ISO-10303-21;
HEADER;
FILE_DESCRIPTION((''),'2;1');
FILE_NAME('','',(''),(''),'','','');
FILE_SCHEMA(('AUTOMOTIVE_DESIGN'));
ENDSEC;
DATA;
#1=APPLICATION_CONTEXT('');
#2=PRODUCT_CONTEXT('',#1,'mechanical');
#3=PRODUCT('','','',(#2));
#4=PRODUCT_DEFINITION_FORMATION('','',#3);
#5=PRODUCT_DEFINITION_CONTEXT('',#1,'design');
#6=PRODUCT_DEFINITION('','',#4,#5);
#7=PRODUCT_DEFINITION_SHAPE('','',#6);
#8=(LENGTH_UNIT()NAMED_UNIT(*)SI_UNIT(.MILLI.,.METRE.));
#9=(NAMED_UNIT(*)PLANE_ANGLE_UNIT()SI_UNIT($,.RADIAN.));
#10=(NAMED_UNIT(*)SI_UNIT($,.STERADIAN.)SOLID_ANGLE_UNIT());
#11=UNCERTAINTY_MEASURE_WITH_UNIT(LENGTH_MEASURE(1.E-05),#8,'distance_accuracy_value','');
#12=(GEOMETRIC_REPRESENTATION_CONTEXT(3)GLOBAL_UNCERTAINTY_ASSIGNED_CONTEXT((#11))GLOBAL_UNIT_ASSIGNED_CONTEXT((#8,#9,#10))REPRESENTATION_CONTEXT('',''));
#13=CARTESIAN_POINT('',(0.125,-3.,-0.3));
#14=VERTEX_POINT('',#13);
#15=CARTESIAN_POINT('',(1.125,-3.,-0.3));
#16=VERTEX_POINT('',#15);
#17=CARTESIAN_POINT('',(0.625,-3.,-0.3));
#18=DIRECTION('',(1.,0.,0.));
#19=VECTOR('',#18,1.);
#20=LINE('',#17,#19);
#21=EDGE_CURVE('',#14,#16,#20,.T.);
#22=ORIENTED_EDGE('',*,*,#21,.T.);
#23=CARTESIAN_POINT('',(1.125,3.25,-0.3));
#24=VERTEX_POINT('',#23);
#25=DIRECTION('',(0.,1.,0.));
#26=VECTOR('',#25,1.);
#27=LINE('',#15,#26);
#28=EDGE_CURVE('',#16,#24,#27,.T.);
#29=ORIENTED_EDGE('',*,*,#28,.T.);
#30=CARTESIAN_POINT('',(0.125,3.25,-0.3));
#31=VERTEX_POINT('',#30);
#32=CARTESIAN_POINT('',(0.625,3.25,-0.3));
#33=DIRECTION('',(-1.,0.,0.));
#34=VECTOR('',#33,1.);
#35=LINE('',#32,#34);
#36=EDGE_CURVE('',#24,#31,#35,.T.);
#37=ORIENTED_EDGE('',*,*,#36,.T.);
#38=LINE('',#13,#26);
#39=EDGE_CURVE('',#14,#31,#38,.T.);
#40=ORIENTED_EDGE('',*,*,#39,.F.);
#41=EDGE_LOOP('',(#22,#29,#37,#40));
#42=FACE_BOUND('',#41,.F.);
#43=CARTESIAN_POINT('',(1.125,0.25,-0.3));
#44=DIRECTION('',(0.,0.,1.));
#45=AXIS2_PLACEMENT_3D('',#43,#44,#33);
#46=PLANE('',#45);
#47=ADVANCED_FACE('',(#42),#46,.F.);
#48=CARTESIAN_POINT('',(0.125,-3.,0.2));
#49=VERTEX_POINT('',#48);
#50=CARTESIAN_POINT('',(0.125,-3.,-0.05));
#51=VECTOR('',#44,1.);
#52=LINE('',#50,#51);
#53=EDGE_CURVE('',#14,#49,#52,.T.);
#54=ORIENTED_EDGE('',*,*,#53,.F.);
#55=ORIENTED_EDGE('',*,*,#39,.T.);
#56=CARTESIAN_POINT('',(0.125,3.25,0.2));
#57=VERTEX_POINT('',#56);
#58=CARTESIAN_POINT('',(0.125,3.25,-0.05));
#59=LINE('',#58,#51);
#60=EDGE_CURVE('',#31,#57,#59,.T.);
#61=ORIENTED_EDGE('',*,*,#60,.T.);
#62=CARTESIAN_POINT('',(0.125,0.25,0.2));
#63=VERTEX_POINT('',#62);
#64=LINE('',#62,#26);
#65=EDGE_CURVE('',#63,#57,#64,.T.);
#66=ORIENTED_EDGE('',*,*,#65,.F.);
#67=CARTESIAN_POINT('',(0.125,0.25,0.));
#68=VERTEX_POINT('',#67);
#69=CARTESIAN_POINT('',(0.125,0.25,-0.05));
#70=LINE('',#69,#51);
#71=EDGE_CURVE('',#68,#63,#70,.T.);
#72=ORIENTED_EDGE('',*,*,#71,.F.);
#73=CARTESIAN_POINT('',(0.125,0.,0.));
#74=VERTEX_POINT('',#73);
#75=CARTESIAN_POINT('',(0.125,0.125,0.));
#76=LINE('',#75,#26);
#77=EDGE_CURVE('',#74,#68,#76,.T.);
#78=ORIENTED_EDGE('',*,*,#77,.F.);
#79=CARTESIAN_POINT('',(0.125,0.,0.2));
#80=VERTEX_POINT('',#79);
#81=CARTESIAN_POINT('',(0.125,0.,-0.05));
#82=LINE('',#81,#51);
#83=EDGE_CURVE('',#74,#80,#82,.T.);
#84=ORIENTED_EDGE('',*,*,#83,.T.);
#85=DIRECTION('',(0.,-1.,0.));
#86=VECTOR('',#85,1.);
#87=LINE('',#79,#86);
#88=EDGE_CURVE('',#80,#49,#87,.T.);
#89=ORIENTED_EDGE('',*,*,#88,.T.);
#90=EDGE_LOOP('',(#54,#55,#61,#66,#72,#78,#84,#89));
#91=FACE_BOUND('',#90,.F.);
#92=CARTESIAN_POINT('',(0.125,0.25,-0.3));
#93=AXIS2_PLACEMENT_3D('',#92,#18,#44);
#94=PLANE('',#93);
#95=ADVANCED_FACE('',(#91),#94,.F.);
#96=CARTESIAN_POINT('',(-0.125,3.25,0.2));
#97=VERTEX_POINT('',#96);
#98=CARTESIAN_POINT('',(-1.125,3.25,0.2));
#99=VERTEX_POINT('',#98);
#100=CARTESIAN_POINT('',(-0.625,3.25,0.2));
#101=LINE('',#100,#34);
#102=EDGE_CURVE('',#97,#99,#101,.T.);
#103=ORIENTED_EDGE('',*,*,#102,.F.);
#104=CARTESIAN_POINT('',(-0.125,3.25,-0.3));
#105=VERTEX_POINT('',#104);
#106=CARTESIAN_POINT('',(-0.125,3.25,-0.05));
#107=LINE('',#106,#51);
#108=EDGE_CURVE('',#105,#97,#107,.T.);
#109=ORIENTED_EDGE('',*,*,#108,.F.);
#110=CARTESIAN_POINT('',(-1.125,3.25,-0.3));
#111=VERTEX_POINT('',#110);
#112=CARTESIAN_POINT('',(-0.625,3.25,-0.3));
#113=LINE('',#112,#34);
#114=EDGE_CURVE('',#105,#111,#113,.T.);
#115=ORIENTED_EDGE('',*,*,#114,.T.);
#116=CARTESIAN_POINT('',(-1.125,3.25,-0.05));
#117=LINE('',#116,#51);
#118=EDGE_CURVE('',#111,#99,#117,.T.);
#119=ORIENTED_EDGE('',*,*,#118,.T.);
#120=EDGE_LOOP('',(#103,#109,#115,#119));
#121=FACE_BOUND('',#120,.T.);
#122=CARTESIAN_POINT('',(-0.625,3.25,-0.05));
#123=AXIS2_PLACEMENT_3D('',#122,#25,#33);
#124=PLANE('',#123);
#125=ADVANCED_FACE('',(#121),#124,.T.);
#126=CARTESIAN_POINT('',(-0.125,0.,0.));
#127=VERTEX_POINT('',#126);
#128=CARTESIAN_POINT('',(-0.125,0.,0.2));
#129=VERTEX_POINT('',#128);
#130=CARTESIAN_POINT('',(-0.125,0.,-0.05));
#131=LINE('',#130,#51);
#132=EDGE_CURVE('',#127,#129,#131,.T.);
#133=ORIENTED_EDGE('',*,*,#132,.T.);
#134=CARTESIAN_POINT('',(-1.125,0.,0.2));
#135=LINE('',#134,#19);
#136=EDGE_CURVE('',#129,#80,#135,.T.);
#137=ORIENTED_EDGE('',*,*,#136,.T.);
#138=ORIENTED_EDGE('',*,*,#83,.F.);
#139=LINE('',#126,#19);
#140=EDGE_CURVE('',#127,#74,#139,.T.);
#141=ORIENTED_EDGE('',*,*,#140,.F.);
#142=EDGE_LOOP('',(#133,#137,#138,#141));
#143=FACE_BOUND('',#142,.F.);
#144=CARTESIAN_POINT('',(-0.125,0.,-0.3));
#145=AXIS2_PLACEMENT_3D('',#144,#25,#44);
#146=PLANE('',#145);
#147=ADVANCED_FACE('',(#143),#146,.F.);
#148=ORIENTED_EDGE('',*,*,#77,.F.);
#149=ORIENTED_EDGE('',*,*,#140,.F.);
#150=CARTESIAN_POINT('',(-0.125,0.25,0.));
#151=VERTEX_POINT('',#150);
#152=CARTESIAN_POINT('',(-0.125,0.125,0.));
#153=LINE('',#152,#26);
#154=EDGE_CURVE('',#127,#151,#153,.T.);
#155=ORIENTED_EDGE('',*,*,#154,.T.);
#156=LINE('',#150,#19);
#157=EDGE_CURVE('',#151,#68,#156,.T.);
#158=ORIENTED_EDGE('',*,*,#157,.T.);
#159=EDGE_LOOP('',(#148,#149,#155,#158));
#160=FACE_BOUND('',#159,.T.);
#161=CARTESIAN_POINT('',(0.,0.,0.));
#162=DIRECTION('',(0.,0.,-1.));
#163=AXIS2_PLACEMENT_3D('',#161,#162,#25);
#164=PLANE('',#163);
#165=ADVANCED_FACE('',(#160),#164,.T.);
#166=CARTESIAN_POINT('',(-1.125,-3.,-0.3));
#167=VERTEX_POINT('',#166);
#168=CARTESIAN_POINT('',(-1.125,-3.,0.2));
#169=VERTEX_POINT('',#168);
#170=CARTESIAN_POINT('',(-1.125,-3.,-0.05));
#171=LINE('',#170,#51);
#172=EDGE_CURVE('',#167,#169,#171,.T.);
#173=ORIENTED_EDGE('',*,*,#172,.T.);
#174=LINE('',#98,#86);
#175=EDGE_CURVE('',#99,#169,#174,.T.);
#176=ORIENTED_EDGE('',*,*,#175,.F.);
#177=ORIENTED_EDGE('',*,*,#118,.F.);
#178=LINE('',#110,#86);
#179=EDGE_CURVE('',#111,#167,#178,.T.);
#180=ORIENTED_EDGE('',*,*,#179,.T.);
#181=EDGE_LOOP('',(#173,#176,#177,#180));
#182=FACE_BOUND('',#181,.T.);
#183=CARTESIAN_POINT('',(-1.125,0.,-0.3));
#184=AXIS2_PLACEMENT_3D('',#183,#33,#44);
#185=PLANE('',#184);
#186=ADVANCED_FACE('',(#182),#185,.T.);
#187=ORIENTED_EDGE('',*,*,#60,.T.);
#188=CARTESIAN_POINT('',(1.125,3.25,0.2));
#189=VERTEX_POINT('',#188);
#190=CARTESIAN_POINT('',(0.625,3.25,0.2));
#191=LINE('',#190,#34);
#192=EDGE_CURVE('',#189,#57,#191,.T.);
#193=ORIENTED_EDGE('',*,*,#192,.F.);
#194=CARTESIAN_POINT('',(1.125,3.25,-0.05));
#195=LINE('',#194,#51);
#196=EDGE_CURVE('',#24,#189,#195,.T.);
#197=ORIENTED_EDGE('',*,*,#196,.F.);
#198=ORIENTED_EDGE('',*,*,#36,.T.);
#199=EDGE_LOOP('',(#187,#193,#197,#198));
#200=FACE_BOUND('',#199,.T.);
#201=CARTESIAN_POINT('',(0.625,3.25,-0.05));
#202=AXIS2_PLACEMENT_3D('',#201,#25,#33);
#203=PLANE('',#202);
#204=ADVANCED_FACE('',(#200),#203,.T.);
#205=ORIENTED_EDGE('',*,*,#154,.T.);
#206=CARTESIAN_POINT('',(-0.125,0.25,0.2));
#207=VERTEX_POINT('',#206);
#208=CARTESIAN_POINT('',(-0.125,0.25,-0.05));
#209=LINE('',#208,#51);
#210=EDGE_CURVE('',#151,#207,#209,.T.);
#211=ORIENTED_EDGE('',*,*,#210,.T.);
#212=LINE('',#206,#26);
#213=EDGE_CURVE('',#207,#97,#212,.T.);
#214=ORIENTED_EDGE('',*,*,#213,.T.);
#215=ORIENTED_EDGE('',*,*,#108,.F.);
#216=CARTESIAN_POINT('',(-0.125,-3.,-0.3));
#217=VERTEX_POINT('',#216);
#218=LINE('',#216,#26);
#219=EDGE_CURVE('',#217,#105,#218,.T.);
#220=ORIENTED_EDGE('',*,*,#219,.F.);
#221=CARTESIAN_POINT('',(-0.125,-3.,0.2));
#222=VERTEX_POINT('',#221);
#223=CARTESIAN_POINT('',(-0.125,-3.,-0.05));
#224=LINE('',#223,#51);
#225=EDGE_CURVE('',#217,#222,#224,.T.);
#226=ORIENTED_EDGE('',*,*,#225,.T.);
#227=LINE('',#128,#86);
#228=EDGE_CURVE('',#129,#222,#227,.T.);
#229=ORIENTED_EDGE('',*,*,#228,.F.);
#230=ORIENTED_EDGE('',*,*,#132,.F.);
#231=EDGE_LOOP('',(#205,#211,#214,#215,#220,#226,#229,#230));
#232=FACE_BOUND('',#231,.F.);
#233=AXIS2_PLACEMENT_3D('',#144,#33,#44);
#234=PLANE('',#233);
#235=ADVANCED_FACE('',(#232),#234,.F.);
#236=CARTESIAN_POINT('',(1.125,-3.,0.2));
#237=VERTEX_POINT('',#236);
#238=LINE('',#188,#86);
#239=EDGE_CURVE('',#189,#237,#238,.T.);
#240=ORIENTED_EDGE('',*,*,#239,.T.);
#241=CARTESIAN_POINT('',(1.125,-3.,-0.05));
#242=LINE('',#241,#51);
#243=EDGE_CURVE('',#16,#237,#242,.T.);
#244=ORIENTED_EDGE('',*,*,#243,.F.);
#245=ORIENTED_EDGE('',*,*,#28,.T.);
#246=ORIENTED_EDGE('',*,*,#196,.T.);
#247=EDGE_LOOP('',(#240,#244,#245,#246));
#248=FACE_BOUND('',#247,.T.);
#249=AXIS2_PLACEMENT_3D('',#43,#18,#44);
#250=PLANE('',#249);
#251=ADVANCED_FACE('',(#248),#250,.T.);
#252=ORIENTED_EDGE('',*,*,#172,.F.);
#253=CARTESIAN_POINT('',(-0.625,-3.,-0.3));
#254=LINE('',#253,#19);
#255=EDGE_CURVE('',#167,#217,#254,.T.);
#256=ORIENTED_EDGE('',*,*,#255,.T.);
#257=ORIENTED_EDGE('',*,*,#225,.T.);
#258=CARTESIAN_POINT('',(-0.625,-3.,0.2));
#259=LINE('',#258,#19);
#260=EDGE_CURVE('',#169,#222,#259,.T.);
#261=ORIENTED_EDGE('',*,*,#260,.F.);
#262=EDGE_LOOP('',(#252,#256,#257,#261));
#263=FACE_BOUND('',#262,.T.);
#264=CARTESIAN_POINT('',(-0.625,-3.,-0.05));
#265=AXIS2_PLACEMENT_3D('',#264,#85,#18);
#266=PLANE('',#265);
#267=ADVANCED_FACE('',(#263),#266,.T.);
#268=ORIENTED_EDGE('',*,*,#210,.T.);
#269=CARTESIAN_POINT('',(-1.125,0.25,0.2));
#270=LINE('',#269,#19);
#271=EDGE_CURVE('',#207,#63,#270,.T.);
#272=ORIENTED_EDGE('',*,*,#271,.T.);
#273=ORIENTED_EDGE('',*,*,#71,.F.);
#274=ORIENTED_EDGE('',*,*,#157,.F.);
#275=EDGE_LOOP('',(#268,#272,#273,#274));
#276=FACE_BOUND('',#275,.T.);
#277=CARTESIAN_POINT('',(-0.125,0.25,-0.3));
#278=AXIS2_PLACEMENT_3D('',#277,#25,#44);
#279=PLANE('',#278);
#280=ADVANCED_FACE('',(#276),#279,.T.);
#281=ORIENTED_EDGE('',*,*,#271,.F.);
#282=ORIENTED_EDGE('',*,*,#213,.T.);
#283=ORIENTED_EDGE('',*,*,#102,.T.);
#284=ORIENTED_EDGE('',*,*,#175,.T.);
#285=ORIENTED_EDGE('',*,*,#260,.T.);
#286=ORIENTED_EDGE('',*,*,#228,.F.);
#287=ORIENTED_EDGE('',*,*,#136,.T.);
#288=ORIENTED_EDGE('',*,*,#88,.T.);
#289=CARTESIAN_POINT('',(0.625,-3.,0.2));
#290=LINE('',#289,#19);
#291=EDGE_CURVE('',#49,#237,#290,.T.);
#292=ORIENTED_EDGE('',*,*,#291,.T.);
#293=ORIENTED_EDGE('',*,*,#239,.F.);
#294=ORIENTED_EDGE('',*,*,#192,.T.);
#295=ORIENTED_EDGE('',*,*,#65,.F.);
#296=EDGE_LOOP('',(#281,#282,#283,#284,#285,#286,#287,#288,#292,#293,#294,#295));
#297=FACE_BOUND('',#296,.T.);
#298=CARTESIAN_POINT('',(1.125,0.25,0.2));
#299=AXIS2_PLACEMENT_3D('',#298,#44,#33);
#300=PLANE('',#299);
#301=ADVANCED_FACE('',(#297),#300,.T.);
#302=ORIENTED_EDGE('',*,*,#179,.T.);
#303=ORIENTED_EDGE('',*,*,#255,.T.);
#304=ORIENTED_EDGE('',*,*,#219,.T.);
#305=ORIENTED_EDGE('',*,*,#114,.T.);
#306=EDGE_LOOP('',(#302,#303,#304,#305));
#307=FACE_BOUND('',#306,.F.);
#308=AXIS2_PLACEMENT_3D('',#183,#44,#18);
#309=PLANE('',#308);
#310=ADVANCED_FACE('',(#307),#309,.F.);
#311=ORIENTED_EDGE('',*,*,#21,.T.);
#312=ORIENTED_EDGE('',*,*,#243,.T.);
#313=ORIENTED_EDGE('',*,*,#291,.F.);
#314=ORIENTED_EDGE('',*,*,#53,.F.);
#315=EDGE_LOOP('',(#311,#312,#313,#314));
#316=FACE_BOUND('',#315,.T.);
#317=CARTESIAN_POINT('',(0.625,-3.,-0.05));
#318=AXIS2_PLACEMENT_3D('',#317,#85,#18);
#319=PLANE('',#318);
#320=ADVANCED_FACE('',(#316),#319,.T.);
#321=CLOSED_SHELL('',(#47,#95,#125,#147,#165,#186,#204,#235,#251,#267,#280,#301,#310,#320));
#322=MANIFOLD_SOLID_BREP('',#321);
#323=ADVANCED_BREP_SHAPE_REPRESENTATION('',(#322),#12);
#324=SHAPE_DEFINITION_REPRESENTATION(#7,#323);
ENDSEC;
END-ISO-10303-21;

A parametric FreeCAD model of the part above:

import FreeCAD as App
import Part
import Sketcher
from FreeCAD import Vector
Q = App.Units.Quantity


def add_polygon(sketch, points):
    """Adds a closed chain of lines whose ends are joined by coincident constraints."""
    first, n = sketch.GeometryCount, len(points)
    for a, b in zip(points, points[1:] + points[:1]):
        sketch.addGeometry(Part.LineSegment(App.Vector(*a, 0), App.Vector(*b, 0)), False)
    for i in range(n):
        sketch.addConstraint(Sketcher.Constraint("Coincident", first + i, 2, first + (i + 1) % n, 1))

doc = App.newDocument("Part")
body = doc.addObject("PartDesign::Body", "Body")

# Sketch on YZ plane
sketch1 = doc.addObject("Sketcher::SketchObject", "Sketch")
body.addObject(sketch1)
sketch1.AttachmentSupport = (doc.YZ_Plane, [""])
sketch1.MapMode = "FlatFace"
add_polygon(sketch1, [(0, 0.2), (0, 0), (0.25, 0), (0.25, 0.2)])  # lines 0-3
sketch1.addConstraint([
    Sketcher.Constraint("Vertical", 0),
    Sketcher.Constraint("Horizontal", 1),
    Sketcher.Constraint("Vertical", 2),
    Sketcher.Constraint("Horizontal", 3),
    Sketcher.Constraint("Coincident", 0, 2, -1, 1),
    Sketcher.Constraint("DistanceY", 0, 2, 0, 1, Q("0.2 mm")),
    Sketcher.Constraint("DistanceX", 1, 1, 1, 2, Q("0.25 mm")),
])
pad1 = doc.addObject("PartDesign::Pad", "Pad")
body.addObject(pad1)
pad1.Profile = sketch1
pad1.Length = 0.25
pad1.Midplane = True

# Sketch on YZ plane
sketch2 = doc.addObject("Sketcher::SketchObject", "Sketch001")
body.addObject(sketch2)
sketch2.AttachmentSupport = (doc.YZ_Plane, [""])
sketch2.MapMode = "FlatFace"
sketch2.AttachmentOffset = App.Placement(Vector(0, 0, 0.125), App.Rotation())
add_polygon(sketch2, [(0, 0.2), (0, -0.3), (0.25, -0.3), (0.25, 0.2)])  # lines 0-3
sketch2.addConstraint([
    Sketcher.Constraint("Vertical", 0),
    Sketcher.Constraint("Horizontal", 1),
    Sketcher.Constraint("Vertical", 2),
    Sketcher.Constraint("Horizontal", 3),
    Sketcher.Constraint("PointOnObject", 0, 2, -2),
    Sketcher.Constraint("DistanceY", 0, 2, 0, 1, Q("0.5 mm")),
    Sketcher.Constraint("DistanceX", 1, 1, 1, 2, Q("0.25 mm")),
    Sketcher.Constraint("DistanceY", 0, 2, -1, 1, Q("0.3 mm")),
])
pad2 = doc.addObject("PartDesign::Pad", "Pad001")
body.addObject(pad2)
pad2.Profile = sketch2
pad2.Length = 1

# Sketch on YZ plane
sketch3 = doc.addObject("Sketcher::SketchObject", "Sketch002")
body.addObject(sketch3)
sketch3.AttachmentSupport = (doc.YZ_Plane, [""])
sketch3.MapMode = "FlatFace"
sketch3.AttachmentOffset = App.Placement(Vector(0, 0, -0.125), App.Rotation())
add_polygon(sketch3, [(0.25, 0.2), (0.25, -0.3), (0, -0.3), (0, 0.2)])  # lines 0-3
sketch3.addConstraint([
    Sketcher.Constraint("Vertical", 0),
    Sketcher.Constraint("Horizontal", 1),
    Sketcher.Constraint("Vertical", 2),
    Sketcher.Constraint("Horizontal", 3),
    Sketcher.Constraint("PointOnObject", 1, 2, -2),
    Sketcher.Constraint("DistanceY", 0, 2, 0, 1, Q("0.5 mm")),
    Sketcher.Constraint("DistanceX", 1, 2, 1, 1, Q("0.25 mm")),
    Sketcher.Constraint("DistanceY", 0, 2, -1, 1, Q("0.3 mm")),
])
pad3 = doc.addObject("PartDesign::Pad", "Pad002")
body.addObject(pad3)
pad3.Profile = sketch3
pad3.Length = 1
pad3.Reversed = True

# Sketch on XZ plane
sketch4 = doc.addObject("Sketcher::SketchObject", "Sketch003")
body.addObject(sketch4)
sketch4.AttachmentSupport = (doc.XZ_Plane, [""])
sketch4.MapMode = "FlatFace"
add_polygon(sketch4, [(-1.1, 0.2), (-1.1, -0.3), (-0.1, -0.3), (-0.1, 0.2)])  # lines 0-3
add_polygon(sketch4, [(0.1, 0.2), (0.1, -0.3), (1.1, -0.3), (1.1, 0.2)])  # lines 4-7
sketch4.addConstraint([
    Sketcher.Constraint("Vertical", 0),
    Sketcher.Constraint("Horizontal", 1),
    Sketcher.Constraint("Vertical", 2),
    Sketcher.Constraint("Horizontal", 3),
    Sketcher.Constraint("Vertical", 4),
    Sketcher.Constraint("Horizontal", 5),
    Sketcher.Constraint("Vertical", 6),
    Sketcher.Constraint("Horizontal", 7),
    Sketcher.Constraint("Symmetric", 1, 2, 4, 2, -2),
    Sketcher.Constraint("Symmetric", 3, 2, 6, 2, -2),
    Sketcher.Constraint("DistanceX", 1, 1, 1, 2, Q("1 mm")),
    Sketcher.Constraint("DistanceY", 0, 2, 0, 1, Q("0.5 mm")),
    Sketcher.Constraint("DistanceY", 0, 2, -1, 1, Q("0.3 mm")),
    Sketcher.Constraint("DistanceX", 1, 2, 4, 2, Q("0.25 mm")),
])
pad4 = doc.addObject("PartDesign::Pad", "Pad003")
body.addObject(pad4)
pad4.Profile = sketch4
pad4.Length = 3

# Sketch on XZ plane
sketch5 = doc.addObject("Sketcher::SketchObject", "Sketch004")
body.addObject(sketch5)
sketch5.AttachmentSupport = (doc.XZ_Plane, [""])
sketch5.MapMode = "FlatFace"
sketch5.AttachmentOffset = App.Placement(Vector(0, 0, -0.25), App.Rotation())
add_polygon(sketch5, [(1.1, 0.2), (1.1, -0.3), (0.1, -0.3), (0.1, 0.2)])  # lines 0-3
add_polygon(sketch5, [(-0.1, 0.2), (-0.1, -0.3), (-1.1, -0.3), (-1.1, 0.2)])  # lines 4-7
sketch5.addConstraint([
    Sketcher.Constraint("Vertical", 0),
    Sketcher.Constraint("Horizontal", 1),
    Sketcher.Constraint("Vertical", 2),
    Sketcher.Constraint("Horizontal", 3),
    Sketcher.Constraint("Vertical", 4),
    Sketcher.Constraint("Horizontal", 5),
    Sketcher.Constraint("Vertical", 6),
    Sketcher.Constraint("Horizontal", 7),
    Sketcher.Constraint("Symmetric", 1, 2, 4, 2, -2),
    Sketcher.Constraint("Symmetric", 3, 2, 6, 2, -2),
    Sketcher.Constraint("DistanceX", 1, 2, 1, 1, Q("1 mm")),
    Sketcher.Constraint("DistanceY", 0, 2, 0, 1, Q("0.5 mm")),
    Sketcher.Constraint("DistanceY", 0, 2, -1, 1, Q("0.3 mm")),
    Sketcher.Constraint("DistanceX", 4, 2, 1, 2, Q("0.25 mm")),
])
pad5 = doc.addObject("PartDesign::Pad", "Pad004")
body.addObject(pad5)
pad5.Profile = sketch5
pad5.Length = 3
pad5.Reversed = True

doc.recompute()
